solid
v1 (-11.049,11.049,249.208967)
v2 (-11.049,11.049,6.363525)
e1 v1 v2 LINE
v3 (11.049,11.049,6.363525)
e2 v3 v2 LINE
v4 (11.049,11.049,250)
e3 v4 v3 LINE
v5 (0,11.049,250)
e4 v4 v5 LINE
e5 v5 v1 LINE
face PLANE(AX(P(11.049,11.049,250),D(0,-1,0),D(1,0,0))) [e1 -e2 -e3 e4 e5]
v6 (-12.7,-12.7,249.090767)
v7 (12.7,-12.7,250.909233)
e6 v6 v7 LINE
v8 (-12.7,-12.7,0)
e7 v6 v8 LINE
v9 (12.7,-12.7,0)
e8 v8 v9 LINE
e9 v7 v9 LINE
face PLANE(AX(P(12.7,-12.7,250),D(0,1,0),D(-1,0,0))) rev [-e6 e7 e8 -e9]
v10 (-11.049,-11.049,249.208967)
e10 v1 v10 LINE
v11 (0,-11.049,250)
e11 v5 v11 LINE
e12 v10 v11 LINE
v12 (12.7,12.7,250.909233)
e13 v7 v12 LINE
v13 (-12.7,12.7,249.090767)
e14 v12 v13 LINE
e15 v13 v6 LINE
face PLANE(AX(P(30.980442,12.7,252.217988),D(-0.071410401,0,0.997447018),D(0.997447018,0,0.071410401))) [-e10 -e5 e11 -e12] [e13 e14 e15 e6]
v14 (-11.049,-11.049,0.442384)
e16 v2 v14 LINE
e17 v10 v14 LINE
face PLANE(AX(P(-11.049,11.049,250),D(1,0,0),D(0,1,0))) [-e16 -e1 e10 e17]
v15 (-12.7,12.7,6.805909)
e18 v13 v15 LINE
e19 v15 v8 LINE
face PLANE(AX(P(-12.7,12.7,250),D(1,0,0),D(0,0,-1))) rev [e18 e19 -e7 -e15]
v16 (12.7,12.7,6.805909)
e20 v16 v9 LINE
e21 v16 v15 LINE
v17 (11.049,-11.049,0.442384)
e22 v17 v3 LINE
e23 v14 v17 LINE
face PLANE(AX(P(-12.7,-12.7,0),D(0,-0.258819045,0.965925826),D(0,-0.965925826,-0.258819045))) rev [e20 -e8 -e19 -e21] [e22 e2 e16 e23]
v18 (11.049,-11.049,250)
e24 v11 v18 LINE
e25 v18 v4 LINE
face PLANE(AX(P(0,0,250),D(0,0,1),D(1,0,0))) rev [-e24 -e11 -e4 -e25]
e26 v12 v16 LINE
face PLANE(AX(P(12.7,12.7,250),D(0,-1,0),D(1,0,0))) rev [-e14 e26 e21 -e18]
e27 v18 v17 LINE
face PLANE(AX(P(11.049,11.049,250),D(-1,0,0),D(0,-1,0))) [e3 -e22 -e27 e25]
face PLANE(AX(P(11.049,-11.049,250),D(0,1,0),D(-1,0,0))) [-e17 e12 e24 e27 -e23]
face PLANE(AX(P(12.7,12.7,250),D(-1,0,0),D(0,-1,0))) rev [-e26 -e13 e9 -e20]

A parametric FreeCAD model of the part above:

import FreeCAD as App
import Part
import Sketcher

V = App.Vector
Q = App.Units.Quantity


def add_polygon(sketch, points):
    """Adds a closed chain of lines whose ends are joined by coincident constraints."""
    first, n = sketch.GeometryCount, len(points)
    for a, b in zip(points, points[1:] + points[:1]):
        sketch.addGeometry(Part.LineSegment(App.Vector(*a, 0), App.Vector(*b, 0)), False)
    for i in range(n):
        sketch.addConstraint(Sketcher.Constraint("Coincident", first + i, 2, first + (i + 1) % n, 1))

doc = App.newDocument("Part")
params = doc.addObject("Spreadsheet::Sheet", "Params")
for row, (alias, value) in enumerate([
    ("sketch1_width", "25.4 mm"),
    ("pad1_length", "250 mm"),
    ("sketch2_width", "25.4 mm"),
    ("pad2_length", "25.4 mm"),
], start=1):
    params.set(f"A{row}", alias)
    params.set(f"B{row}", "=" + value)
    params.setAlias(f"B{row}", alias)

body = doc.addObject("PartDesign::Body", "Body")

sketch1 = body.newObject("Sketcher::SketchObject", "Sketch")
sketch1.AttachmentSupport = (doc.getObject("XY_Plane"), [""])
sketch1.MapMode = "FlatFace"
add_polygon(sketch1, [(-12.7, 12.7), (-12.7, -12.7), (12.7, -12.7), (12.7, 12.7)])
add_polygon(sketch1, [(11.049, -11.049), (-11.049, -11.049), (-11.049, 11.049), (11.049, 11.049)])
sketch1.addConstraint([
    Sketcher.Constraint("Vertical", 0),
    Sketcher.Constraint("Horizontal", 1),
    Sketcher.Constraint("Vertical", 2),
    Sketcher.Constraint("Horizontal", 3),
    Sketcher.Constraint("Horizontal", 4),
    Sketcher.Constraint("Vertical", 5),
    Sketcher.Constraint("Horizontal", 6),
    Sketcher.Constraint("Vertical", 7),
    Sketcher.Constraint("Symmetric", 0, 2, 2, 2, -1, 1),
    Sketcher.Constraint("Symmetric", 4, 2, 6, 2, -1, 1),
    Sketcher.Constraint("Equal", 3, 0),
    Sketcher.Constraint("Equal", 6, 5),
    Sketcher.Constraint("DistanceX", 1, 1, 1, 2, 25.4),
    Sketcher.Constraint("DistanceX", 4, 2, 4, 1, 22.098),
])
sketch1.setExpression("Constraints[20]", "Params.sketch1_width")
pad1 = body.newObject("PartDesign::Pad", "Pad")
pad1.Profile = sketch1
pad1.setExpression("Length", "Params.pad1_length")

sketch2 = body.newObject("Sketcher::SketchObject", "Sketch001")
sketch2.AttachmentSupport = (doc.getObject("XY_Plane"), [""])
sketch2.MapMode = "FlatFace"
sketch2.AttachmentOffset = App.Placement(V(0, 0, 250), App.Rotation())
add_polygon(sketch2, [(-12.7, 12.7), (-12.7, -12.7), (12.7, -12.7), (12.7, 12.7)])
sketch2.addConstraint([
    Sketcher.Constraint("Vertical", 0),
    Sketcher.Constraint("Horizontal", 1),
    Sketcher.Constraint("Vertical", 2),
    Sketcher.Constraint("Horizontal", 3),
    Sketcher.Constraint("Symmetric", 0, 2, 2, 2, -1, 1),
    Sketcher.Constraint("Equal", 3, 0),
    Sketcher.Constraint("DistanceX", 1, 1, 1, 2, 25.4),
])
sketch2.setExpression("Constraints[10]", "Params.sketch2_width")
pad2 = body.newObject("PartDesign::Pad", "Pad001")
pad2.Profile = sketch2
pad2.setExpression("Length", "Params.pad2_length")

sketch3 = body.newObject("Sketcher::SketchObject", "Sketch002")
sketch3.AttachmentSupport = (doc.getObject("XZ_Plane"), [""])
sketch3.MapMode = "FlatFace"
sketch3.AttachmentOffset = App.Placement(V(0, 0, 151.321579), App.Rotation())
add_polygon(sketch3, [(-17.591275, 324.988469), (30.980442, 252.217988), (-30.980442, 247.782012)])
sketch3.addConstraint([
    Sketcher.Constraint("DistanceX", -1, 1, 0, 2, 30.980442),
    Sketcher.Constraint("DistanceY", -1, 1, 0, 2, 252.217988),
    Sketcher.Constraint("DistanceX", 1, 2, -1, 1, 30.980442),
    Sketcher.Constraint("DistanceY", -1, 1, 1, 2, 247.782012),
    Sketcher.Constraint("DistanceY", -1, 1, 2, 2, 324.988469),
    Sketcher.Constraint("Distance", 0, 87.491454),
])
pocket1 = body.newObject("PartDesign::Pocket", "Pocket")
pocket1.Profile = sketch3
pocket1.Type = "ThroughAll"

sketch4 = body.newObject("Sketcher::SketchObject", "Sketch003")
sketch4.AttachmentSupport = (doc.getObject("YZ_Plane"), [""])
sketch4.MapMode = "FlatFace"
sketch4.AttachmentOffset = App.Placement(V(0, 0, 12.7), App.Rotation())
add_polygon(sketch4, [(30.202762, 11.49576), (-12.7, 0), (24.093065, 0)])
sketch4.addConstraint([
    Sketcher.Constraint("Horizontal", 1),
    Sketcher.Constraint("PointOnObject", 0, 2, -1),
    Sketcher.Constraint("Angle", 0, Q("-165 deg")),
    Sketcher.Constraint("DistanceX", 0, 2, -1, 1, 12.7),
    Sketcher.Constraint("DistanceX", 1, 1, 1, 2, 36.793065),
    Sketcher.Constraint("DistanceY", -1, 1, 2, 2, 11.49576),
])
pocket2 = body.newObject("PartDesign::Pocket", "Pocket001")
pocket2.Profile = sketch4
pocket2.Type = "ThroughAll"

doc.recompute()
